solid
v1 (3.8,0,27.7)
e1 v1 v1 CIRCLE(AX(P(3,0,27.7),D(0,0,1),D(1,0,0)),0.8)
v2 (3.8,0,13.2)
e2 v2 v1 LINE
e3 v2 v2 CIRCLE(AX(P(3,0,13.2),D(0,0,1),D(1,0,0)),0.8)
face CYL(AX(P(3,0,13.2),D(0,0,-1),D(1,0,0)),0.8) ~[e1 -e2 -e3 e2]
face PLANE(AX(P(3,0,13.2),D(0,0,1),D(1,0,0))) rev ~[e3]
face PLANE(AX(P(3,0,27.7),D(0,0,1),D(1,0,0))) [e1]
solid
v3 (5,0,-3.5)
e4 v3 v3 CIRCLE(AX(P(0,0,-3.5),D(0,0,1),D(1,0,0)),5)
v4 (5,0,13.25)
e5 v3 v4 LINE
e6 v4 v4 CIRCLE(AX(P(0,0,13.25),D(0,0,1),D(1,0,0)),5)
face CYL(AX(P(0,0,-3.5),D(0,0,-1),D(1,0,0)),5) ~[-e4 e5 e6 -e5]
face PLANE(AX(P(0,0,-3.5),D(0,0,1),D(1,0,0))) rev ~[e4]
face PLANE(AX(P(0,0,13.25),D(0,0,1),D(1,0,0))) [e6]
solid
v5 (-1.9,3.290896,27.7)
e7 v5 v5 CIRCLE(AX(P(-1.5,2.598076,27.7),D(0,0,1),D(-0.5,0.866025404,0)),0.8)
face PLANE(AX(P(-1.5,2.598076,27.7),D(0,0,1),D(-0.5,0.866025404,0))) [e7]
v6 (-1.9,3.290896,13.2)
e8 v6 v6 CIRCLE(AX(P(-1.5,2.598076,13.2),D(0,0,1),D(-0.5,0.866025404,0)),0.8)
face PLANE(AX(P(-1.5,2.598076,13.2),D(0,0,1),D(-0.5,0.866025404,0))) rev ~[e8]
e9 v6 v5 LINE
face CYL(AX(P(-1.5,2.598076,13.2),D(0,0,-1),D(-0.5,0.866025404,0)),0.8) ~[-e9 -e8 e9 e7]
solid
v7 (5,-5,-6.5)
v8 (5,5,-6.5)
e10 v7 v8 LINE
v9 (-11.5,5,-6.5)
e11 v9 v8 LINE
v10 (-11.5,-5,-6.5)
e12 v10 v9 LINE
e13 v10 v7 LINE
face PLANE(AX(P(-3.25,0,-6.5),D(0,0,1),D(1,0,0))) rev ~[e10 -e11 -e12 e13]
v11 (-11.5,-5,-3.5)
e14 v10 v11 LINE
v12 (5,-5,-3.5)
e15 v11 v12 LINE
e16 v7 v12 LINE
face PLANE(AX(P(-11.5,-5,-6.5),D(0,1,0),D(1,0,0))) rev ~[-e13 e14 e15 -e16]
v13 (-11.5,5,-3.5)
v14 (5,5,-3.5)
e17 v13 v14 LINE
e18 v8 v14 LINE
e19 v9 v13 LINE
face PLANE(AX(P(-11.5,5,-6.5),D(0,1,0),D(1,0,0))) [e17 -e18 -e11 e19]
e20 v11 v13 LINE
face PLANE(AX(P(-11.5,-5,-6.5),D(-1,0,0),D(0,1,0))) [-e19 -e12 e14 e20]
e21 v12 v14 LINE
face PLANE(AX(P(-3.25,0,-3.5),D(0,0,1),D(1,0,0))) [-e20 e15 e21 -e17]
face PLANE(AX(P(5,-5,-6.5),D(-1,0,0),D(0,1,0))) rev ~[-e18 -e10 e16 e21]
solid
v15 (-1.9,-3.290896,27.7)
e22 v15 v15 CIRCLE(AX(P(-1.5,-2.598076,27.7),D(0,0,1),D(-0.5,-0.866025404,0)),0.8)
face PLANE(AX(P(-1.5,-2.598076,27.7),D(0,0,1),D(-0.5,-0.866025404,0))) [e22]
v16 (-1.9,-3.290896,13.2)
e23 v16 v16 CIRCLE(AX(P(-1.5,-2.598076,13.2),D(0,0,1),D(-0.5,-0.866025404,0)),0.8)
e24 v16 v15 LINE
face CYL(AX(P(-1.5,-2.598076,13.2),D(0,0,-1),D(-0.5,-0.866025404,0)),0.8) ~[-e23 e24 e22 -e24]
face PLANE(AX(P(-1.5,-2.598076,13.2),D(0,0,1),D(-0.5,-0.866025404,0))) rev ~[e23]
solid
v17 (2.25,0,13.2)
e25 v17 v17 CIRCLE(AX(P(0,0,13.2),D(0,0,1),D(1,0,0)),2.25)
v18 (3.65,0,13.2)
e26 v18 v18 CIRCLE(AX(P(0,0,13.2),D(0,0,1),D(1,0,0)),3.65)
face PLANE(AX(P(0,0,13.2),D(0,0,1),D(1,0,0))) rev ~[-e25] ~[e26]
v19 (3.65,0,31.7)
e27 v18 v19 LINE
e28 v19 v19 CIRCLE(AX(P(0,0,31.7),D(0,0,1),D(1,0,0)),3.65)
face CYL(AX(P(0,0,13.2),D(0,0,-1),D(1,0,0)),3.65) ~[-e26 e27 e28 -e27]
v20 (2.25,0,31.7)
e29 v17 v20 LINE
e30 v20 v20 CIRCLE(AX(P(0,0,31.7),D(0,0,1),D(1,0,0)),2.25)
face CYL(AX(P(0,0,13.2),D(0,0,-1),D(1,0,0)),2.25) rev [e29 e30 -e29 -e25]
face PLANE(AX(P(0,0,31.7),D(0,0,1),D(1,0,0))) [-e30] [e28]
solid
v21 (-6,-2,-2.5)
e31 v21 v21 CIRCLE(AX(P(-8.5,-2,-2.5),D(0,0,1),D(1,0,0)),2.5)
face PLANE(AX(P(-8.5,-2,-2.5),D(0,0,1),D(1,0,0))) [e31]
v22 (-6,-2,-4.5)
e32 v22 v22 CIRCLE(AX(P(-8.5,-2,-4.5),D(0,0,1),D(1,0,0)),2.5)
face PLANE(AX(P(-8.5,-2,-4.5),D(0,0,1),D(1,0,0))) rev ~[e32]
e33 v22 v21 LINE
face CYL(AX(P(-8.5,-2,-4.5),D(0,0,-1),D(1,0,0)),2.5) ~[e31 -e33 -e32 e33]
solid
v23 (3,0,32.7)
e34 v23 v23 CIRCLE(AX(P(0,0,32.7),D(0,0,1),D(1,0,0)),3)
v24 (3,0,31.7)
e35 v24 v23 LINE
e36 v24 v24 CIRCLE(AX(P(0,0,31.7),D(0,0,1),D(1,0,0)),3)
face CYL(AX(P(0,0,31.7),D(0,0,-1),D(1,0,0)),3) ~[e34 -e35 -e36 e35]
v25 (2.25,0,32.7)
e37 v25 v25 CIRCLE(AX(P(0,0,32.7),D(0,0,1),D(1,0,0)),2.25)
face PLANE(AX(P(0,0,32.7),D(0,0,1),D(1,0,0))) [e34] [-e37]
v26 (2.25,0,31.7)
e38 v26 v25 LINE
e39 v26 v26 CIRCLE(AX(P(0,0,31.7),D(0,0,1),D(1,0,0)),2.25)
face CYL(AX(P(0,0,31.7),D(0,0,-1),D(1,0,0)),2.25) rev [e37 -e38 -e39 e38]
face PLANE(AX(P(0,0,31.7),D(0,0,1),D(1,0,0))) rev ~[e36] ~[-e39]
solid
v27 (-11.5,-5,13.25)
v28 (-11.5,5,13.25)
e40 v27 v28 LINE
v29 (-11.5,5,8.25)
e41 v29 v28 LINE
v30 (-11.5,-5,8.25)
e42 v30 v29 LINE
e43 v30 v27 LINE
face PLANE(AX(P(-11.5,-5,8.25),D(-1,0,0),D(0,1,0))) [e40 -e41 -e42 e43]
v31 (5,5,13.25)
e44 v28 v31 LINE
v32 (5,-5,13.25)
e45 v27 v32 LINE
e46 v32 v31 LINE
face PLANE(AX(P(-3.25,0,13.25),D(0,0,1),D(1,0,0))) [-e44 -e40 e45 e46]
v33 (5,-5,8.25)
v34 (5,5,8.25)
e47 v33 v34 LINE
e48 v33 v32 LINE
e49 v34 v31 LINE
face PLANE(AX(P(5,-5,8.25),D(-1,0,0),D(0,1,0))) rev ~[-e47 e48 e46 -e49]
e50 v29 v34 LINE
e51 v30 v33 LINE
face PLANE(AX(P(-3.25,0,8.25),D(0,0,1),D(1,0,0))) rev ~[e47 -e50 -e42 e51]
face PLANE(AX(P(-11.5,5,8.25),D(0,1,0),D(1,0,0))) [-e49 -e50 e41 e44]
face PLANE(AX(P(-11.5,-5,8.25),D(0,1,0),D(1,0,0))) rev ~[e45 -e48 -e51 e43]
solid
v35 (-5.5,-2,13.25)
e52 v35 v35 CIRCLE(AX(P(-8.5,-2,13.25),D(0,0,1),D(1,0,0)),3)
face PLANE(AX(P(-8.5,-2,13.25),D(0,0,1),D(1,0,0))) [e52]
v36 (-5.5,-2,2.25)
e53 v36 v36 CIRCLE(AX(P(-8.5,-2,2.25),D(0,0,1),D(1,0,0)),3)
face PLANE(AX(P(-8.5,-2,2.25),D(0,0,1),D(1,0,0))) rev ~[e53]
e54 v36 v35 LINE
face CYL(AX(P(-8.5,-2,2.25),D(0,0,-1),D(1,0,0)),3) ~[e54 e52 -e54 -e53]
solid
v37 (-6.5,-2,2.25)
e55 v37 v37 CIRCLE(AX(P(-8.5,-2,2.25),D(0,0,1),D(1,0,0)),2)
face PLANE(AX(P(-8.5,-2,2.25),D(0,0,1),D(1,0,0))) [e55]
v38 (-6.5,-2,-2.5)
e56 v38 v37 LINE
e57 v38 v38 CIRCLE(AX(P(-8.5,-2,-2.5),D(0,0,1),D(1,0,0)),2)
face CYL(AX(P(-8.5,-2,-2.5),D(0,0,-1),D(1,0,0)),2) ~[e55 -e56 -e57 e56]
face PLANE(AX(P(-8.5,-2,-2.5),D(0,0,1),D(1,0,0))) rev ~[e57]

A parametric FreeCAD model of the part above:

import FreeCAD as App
import Part
import Sketcher

V = App.Vector
Q = App.Units.Quantity


def add_polygon(sketch, points):
    """Adds a closed chain of lines whose ends are joined by coincident constraints."""
    first, n = sketch.GeometryCount, len(points)
    for a, b in zip(points, points[1:] + points[:1]):
        sketch.addGeometry(Part.LineSegment(App.Vector(*a, 0), App.Vector(*b, 0)), False)
    for i in range(n):
        sketch.addConstraint(Sketcher.Constraint("Coincident", first + i, 2, first + (i + 1) % n, 1))

doc = App.newDocument("Part")
params = doc.addObject("Spreadsheet::Sheet", "Params")
for row, (alias, value) in enumerate([
    ("sketch1_diameter", "6 mm"),
    ("pad1_length", "11 mm"),
    ("sketch2_diameter", "4 mm"),
    ("pad2_length", "4.75 mm"),
    ("sketch3_diameter", "5 mm"),
    ("pad3_length", "2 mm"),
    ("sketch4_diameter", "1.6 mm"),
    ("pad4_length", "14.5 mm"),
    ("sketch5_diameter", "4.5 mm"),
    ("pad5_length", "18.5 mm"),
    ("sketch6_diameter", "7.3 mm"),
    ("pad6_length", "18.5 mm"),
    ("sketch7_diameter", "4.5 mm"),
    ("pad7_length", "1 mm"),
    ("sketch8_diameter", "6 mm"),
    ("pad8_length", "1 mm"),
    ("sketch9_diameter", "1.6 mm"),
    ("pad9_length", "14.5 mm"),
    ("sketch10_diameter", "1.6 mm"),
    ("pad10_length", "14.5 mm"),
    ("sketch11_height", "10 mm"),
    ("sketch11_width", "16.5 mm"),
    ("pad11_length", "5 mm"),
    ("sketch12_diameter", "10 mm"),
    ("pad12_length", "16.75 mm"),
    ("sketch13_height", "10 mm"),
    ("sketch13_width", "16.5 mm"),
    ("pad13_length", "3 mm"),
], start=1):
    params.set(f"A{row}", alias)
    params.set(f"B{row}", "=" + value)
    params.setAlias(f"B{row}", alias)

body = doc.addObject("PartDesign::Body", "Body")

# Sketch on XY plane
sketch1 = body.newObject("Sketcher::SketchObject", "Sketch")
sketch1.AttachmentSupport = (doc.getObject("XY_Plane"), [""])
sketch1.MapMode = "FlatFace"
sketch1.AttachmentOffset = App.Placement(V(0, 0, 2.25), App.Rotation())
sketch1.addGeometry(Part.Circle(V(-8.5, -2, 0), V(0, 0, 1), 3), False)
sketch1.addConstraint([
    Sketcher.Constraint("Diameter", 0, Q("6 mm")),
    Sketcher.Constraint("DistanceY", 0, 3, -1, 1, Q("2 mm")),
    Sketcher.Constraint("DistanceX", 0, 3, -1, 1, Q("8.5 mm")),
])
sketch1.setExpression("Constraints[0]", "Params.sketch1_diameter")
pad1 = body.newObject("PartDesign::Pad", "Pad")
pad1.Profile = sketch1
pad1.setExpression("Length", "Params.pad1_length")
body2 = doc.addObject("PartDesign::Body", "Body001")

# Sketch on XY plane
sketch2 = body2.newObject("Sketcher::SketchObject", "Sketch001")
sketch2.AttachmentSupport = (doc.getObject("XY_Plane001"), [""])
sketch2.MapMode = "FlatFace"
sketch2.AttachmentOffset = App.Placement(V(0, 0, -2.5), App.Rotation())
sketch2.addGeometry(Part.Circle(V(-8.5, -2, 0), V(0, 0, 1), 2), False)
sketch2.addConstraint([
    Sketcher.Constraint("Diameter", 0, Q("4 mm")),
    Sketcher.Constraint("DistanceY", 0, 3, -1, 1, Q("2 mm")),
    Sketcher.Constraint("DistanceX", 0, 3, -1, 1, Q("8.5 mm")),
])
sketch2.setExpression("Constraints[0]", "Params.sketch2_diameter")
pad2 = body2.newObject("PartDesign::Pad", "Pad001")
pad2.Profile = sketch2
pad2.setExpression("Length", "Params.pad2_length")
body3 = doc.addObject("PartDesign::Body", "Body002")

# Sketch on XY plane
sketch3 = body3.newObject("Sketcher::SketchObject", "Sketch002")
sketch3.AttachmentSupport = (doc.getObject("XY_Plane002"), [""])
sketch3.MapMode = "FlatFace"
sketch3.AttachmentOffset = App.Placement(V(0, 0, -4.5), App.Rotation())
sketch3.addGeometry(Part.Circle(V(-8.5, -2, 0), V(0, 0, 1), 2.5), False)
sketch3.addConstraint([
    Sketcher.Constraint("Diameter", 0, Q("5 mm")),
    Sketcher.Constraint("DistanceY", 0, 3, -1, 1, Q("2 mm")),
    Sketcher.Constraint("DistanceX", 0, 3, -1, 1, Q("8.5 mm")),
])
sketch3.setExpression("Constraints[0]", "Params.sketch3_diameter")
pad3 = body3.newObject("PartDesign::Pad", "Pad002")
pad3.Profile = sketch3
pad3.setExpression("Length", "Params.pad3_length")
body4 = doc.addObject("PartDesign::Body", "Body003")

# Sketch on XY plane
sketch4 = body4.newObject("Sketcher::SketchObject", "Sketch003")
sketch4.AttachmentSupport = (doc.getObject("XY_Plane003"), [""])
sketch4.MapMode = "FlatFace"
sketch4.AttachmentOffset = App.Placement(V(0, 0, 13.2), App.Rotation())
sketch4.addGeometry(Part.Circle(V(3, 0, 0), V(0, 0, 1), 0.8), False)
sketch4.addConstraint([
    Sketcher.Constraint("PointOnObject", 0, 3, -1),
    Sketcher.Constraint("Diameter", 0, Q("1.6 mm")),
    Sketcher.Constraint("DistanceX", -1, 1, 0, 3, Q("3 mm")),
])
sketch4.setExpression("Constraints[1]", "Params.sketch4_diameter")
pad4 = body4.newObject("PartDesign::Pad", "Pad003")
pad4.Profile = sketch4
pad4.setExpression("Length", "Params.pad4_length")
body5 = doc.addObject("PartDesign::Body", "Body004")

# Sketch on XY plane
sketch5 = body5.newObject("Sketcher::SketchObject", "Sketch004")
sketch5.AttachmentSupport = (doc.getObject("XY_Plane004"), [""])
sketch5.MapMode = "FlatFace"
sketch5.AttachmentOffset = App.Placement(V(0, 0, 13.2), App.Rotation())
sketch5.addGeometry(Part.Circle(V(0, 0, 0), V(0, 0, 1), 2.25), False)
sketch5.addConstraint([
    Sketcher.Constraint("Coincident", 0, 3, -1, 1),
    Sketcher.Constraint("Diameter", 0, Q("4.5 mm")),
])
sketch5.setExpression("Constraints[1]", "Params.sketch5_diameter")
pad5 = body5.newObject("PartDesign::Pad", "Pad004")
pad5.Profile = sketch5
pad5.setExpression("Length", "Params.pad5_length")
body6 = doc.addObject("PartDesign::Body", "Body005")

# Sketch on XY plane
sketch6 = body6.newObject("Sketcher::SketchObject", "Sketch005")
sketch6.AttachmentSupport = (doc.getObject("XY_Plane005"), [""])
sketch6.MapMode = "FlatFace"
sketch6.AttachmentOffset = App.Placement(V(0, 0, 13.2), App.Rotation())
sketch6.addGeometry(Part.Circle(V(0, 0, 0), V(0, 0, 1), 3.65), False)
sketch6.addConstraint([
    Sketcher.Constraint("Coincident", 0, 3, -1, 1),
    Sketcher.Constraint("Diameter", 0, Q("7.3 mm")),
])
sketch6.setExpression("Constraints[1]", "Params.sketch6_diameter")
pad6 = body6.newObject("PartDesign::Pad", "Pad005")
pad6.Profile = sketch6
pad6.setExpression("Length", "Params.pad6_length")
doc.recompute()

boolean = body6.newObject("PartDesign::Boolean", "Boolean")
boolean.Type = "Cut"
boolean.addObjects([body5])
body7 = doc.addObject("PartDesign::Body", "Body006")

# Sketch on XY plane
sketch7 = body7.newObject("Sketcher::SketchObject", "Sketch006")
sketch7.AttachmentSupport = (doc.getObject("XY_Plane006"), [""])
sketch7.MapMode = "FlatFace"
sketch7.AttachmentOffset = App.Placement(V(0, 0, 31.7), App.Rotation())
sketch7.addGeometry(Part.Circle(V(0, 0, 0), V(0, 0, 1), 2.25), False)
sketch7.addConstraint([
    Sketcher.Constraint("Coincident", 0, 3, -1, 1),
    Sketcher.Constraint("Diameter", 0, Q("4.5 mm")),
])
sketch7.setExpression("Constraints[1]", "Params.sketch7_diameter")
pad7 = body7.newObject("PartDesign::Pad", "Pad006")
pad7.Profile = sketch7
pad7.setExpression("Length", "Params.pad7_length")
body8 = doc.addObject("PartDesign::Body", "Body007")

# Sketch on XY plane
sketch8 = body8.newObject("Sketcher::SketchObject", "Sketch007")
sketch8.AttachmentSupport = (doc.getObject("XY_Plane007"), [""])
sketch8.MapMode = "FlatFace"
sketch8.AttachmentOffset = App.Placement(V(0, 0, 31.7), App.Rotation())
sketch8.addGeometry(Part.Circle(V(0, 0, 0), V(0, 0, 1), 3), False)
sketch8.addConstraint([
    Sketcher.Constraint("Coincident", 0, 3, -1, 1),
    Sketcher.Constraint("Diameter", 0, Q("6 mm")),
])
sketch8.setExpression("Constraints[1]", "Params.sketch8_diameter")
pad8 = body8.newObject("PartDesign::Pad", "Pad007")
pad8.Profile = sketch8
pad8.setExpression("Length", "Params.pad8_length")
doc.recompute()

boolean2 = body8.newObject("PartDesign::Boolean", "Boolean001")
boolean2.Type = "Cut"
boolean2.addObjects([body7])
body9 = doc.addObject("PartDesign::Body", "Body008")

# Sketch on XY plane
sketch9 = body9.newObject("Sketcher::SketchObject", "Sketch008")
sketch9.AttachmentSupport = (doc.getObject("XY_Plane008"), [""])
sketch9.MapMode = "FlatFace"
sketch9.addGeometry(Part.Circle(V(0, 0, 0), V(0, 0, 1), 0.8), False)
sketch9.addConstraint([
    Sketcher.Constraint("Coincident", 0, 3, -1, 1),
    Sketcher.Constraint("Diameter", 0, Q("1.6 mm")),
])
sketch9.setExpression("Constraints[1]", "Params.sketch9_diameter")
pad9 = body9.newObject("PartDesign::Pad", "Pad008")
pad9.Profile = sketch9
pad9.setExpression("Length", "Params.pad9_length")
body10 = doc.addObject("PartDesign::Body", "Body009")
doc.recompute()

body9.Placement = App.Placement(V(-1.5, 2.598076, 13.2), App.Rotation(V(0, 0, 1), 120))
boolean3 = body10.newObject("PartDesign::Boolean", "Boolean002")
boolean3.Type = "Fuse"
boolean3.addObjects([body9])
body11 = doc.addObject("PartDesign::Body", "Body010")

# Sketch on XY plane
sketch10 = body11.newObject("Sketcher::SketchObject", "Sketch009")
sketch10.AttachmentSupport = (doc.getObject("XY_Plane010"), [""])
sketch10.MapMode = "FlatFace"
sketch10.addGeometry(Part.Circle(V(0, 0, 0), V(0, 0, 1), 0.8), False)
sketch10.addConstraint([
    Sketcher.Constraint("Coincident", 0, 3, -1, 1),
    Sketcher.Constraint("Diameter", 0, Q("1.6 mm")),
])
sketch10.setExpression("Constraints[1]", "Params.sketch10_diameter")
pad10 = body11.newObject("PartDesign::Pad", "Pad009")
pad10.Profile = sketch10
pad10.setExpression("Length", "Params.pad10_length")
body12 = doc.addObject("PartDesign::Body", "Body011")
doc.recompute()

body11.Placement = App.Placement(V(-1.5, -2.598076, 13.2), App.Rotation(V(0, 0, 1), 240))
boolean4 = body12.newObject("PartDesign::Boolean", "Boolean003")
boolean4.Type = "Fuse"
boolean4.addObjects([body11])
body13 = doc.addObject("PartDesign::Body", "Body012")

# Sketch on XY plane
sketch11 = body13.newObject("Sketcher::SketchObject", "Sketch010")
sketch11.AttachmentSupport = (doc.getObject("XY_Plane012"), [""])
sketch11.MapMode = "FlatFace"
sketch11.AttachmentOffset = App.Placement(V(0, 0, 8.25), App.Rotation())
add_polygon(sketch11, [(-11.5, 5), (-11.5, -5), (5, -5), (5, 5)])  # lines 0-3
sketch11.addConstraint([
    Sketcher.Constraint("Vertical", 0),
    Sketcher.Constraint("Horizontal", 1),
    Sketcher.Constraint("Vertical", 2),
    Sketcher.Constraint("Horizontal", 3),
    Sketcher.Constraint("DistanceY", 0, 2, 0, 1, Q("10 mm")),
    Sketcher.Constraint("DistanceX", 1, 1, 1, 2, Q("16.5 mm")),
    Sketcher.Constraint("DistanceY", 0, 2, -1, 1, Q("5 mm")),
    Sketcher.Constraint("DistanceX", -1, 1, 1, 2, Q("5 mm")),
])
sketch11.setExpression("Constraints[8]", "Params.sketch11_height")
sketch11.setExpression("Constraints[9]", "Params.sketch11_width")
pad11 = body13.newObject("PartDesign::Pad", "Pad010")
pad11.Profile = sketch11
pad11.setExpression("Length", "Params.pad11_length")
body14 = doc.addObject("PartDesign::Body", "Body013")

# Sketch on XY plane
sketch12 = body14.newObject("Sketcher::SketchObject", "Sketch011")
sketch12.AttachmentSupport = (doc.getObject("XY_Plane013"), [""])
sketch12.MapMode = "FlatFace"
sketch12.AttachmentOffset = App.Placement(V(0, 0, -3.5), App.Rotation())
sketch12.addGeometry(Part.Circle(V(0, 0, 0), V(0, 0, 1), 5), False)
sketch12.addConstraint([
    Sketcher.Constraint("Coincident", 0, 3, -1, 1),
    Sketcher.Constraint("Diameter", 0, Q("10 mm")),
])
sketch12.setExpression("Constraints[1]", "Params.sketch12_diameter")
pad12 = body14.newObject("PartDesign::Pad", "Pad011")
pad12.Profile = sketch12
pad12.setExpression("Length", "Params.pad12_length")
body15 = doc.addObject("PartDesign::Body", "Body014")

# Sketch on XY plane
sketch13 = body15.newObject("Sketcher::SketchObject", "Sketch012")
sketch13.AttachmentSupport = (doc.getObject("XY_Plane014"), [""])
sketch13.MapMode = "FlatFace"
sketch13.AttachmentOffset = App.Placement(V(0, 0, -6.5), App.Rotation())
add_polygon(sketch13, [(-11.5, 5), (-11.5, -5), (5, -5), (5, 5)])  # lines 0-3
sketch13.addConstraint([
    Sketcher.Constraint("Vertical", 0),
    Sketcher.Constraint("Horizontal", 1),
    Sketcher.Constraint("Vertical", 2),
    Sketcher.Constraint("Horizontal", 3),
    Sketcher.Constraint("DistanceY", 0, 2, 0, 1, Q("10 mm")),
    Sketcher.Constraint("DistanceX", 1, 1, 1, 2, Q("16.5 mm")),
    Sketcher.Constraint("DistanceY", 0, 2, -1, 1, Q("5 mm")),
    Sketcher.Constraint("DistanceX", -1, 1, 1, 2, Q("5 mm")),
])
sketch13.setExpression("Constraints[8]", "Params.sketch13_height")
sketch13.setExpression("Constraints[9]", "Params.sketch13_width")
pad13 = body15.newObject("PartDesign::Pad", "Pad012")
pad13.Profile = sketch13
pad13.setExpression("Length", "Params.pad13_length")

doc.recompute()
